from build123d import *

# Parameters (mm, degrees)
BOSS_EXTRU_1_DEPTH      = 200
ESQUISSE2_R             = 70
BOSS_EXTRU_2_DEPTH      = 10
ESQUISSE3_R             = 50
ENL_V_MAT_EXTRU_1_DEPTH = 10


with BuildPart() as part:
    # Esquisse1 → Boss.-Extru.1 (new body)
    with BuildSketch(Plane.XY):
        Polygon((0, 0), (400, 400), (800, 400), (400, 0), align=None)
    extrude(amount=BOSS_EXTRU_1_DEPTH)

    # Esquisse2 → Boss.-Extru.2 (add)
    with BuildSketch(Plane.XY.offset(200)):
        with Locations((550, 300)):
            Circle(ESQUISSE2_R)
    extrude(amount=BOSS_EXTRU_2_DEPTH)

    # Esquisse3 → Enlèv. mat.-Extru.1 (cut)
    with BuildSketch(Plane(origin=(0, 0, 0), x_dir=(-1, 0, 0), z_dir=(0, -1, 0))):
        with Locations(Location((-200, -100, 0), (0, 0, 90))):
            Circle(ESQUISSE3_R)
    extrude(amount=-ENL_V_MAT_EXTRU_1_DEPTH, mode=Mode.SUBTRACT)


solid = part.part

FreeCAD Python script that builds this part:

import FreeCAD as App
import Part
import Sketcher

V = App.Vector
Q = App.Units.Quantity


def add_polygon(sketch, points):
    """Adds a closed chain of lines whose ends are joined by coincident constraints."""
    first, n = sketch.GeometryCount, len(points)
    for a, b in zip(points, points[1:] + points[:1]):
        sketch.addGeometry(Part.LineSegment(App.Vector(*a, 0), App.Vector(*b, 0)), False)
    for i in range(n):
        sketch.addConstraint(Sketcher.Constraint("Coincident", first + i, 2, first + (i + 1) % n, 1))

doc = App.newDocument("Part")
body = doc.addObject("PartDesign::Body", "Body")

# Sketch on XY plane
sketch1 = doc.addObject("Sketcher::SketchObject", "Sketch")
body.addObject(sketch1)
sketch1.AttachmentSupport = (doc.XY_Plane, [""])
sketch1.MapMode = "FlatFace"
add_polygon(sketch1, [(400, 400), (0, 0), (400, 0), (800, 400)])  # lines 0-3
sketch1.addConstraint([
    Sketcher.Constraint("Horizontal", 1),
    Sketcher.Constraint("Horizontal", 3),
    Sketcher.Constraint("Coincident", 0, 2, -1, 1),
    Sketcher.Constraint("Parallel", 0, 2),
    Sketcher.Constraint("Vertical", 1, 2, 3, 2),
    Sketcher.Constraint("DistanceX", 1, 1, 1, 2, 400.0),
    Sketcher.Constraint("Angle", 0, Q("-135 deg")),
])
pad1 = doc.addObject("PartDesign::Pad", "Pad")
body.addObject(pad1)
pad1.Profile = sketch1
pad1.Length = 200

# Sketch on XY plane
sketch2 = doc.addObject("Sketcher::SketchObject", "Sketch001")
body.addObject(sketch2)
sketch2.AttachmentSupport = (doc.XY_Plane, [""])
sketch2.MapMode = "FlatFace"
sketch2.AttachmentOffset = App.Placement(V(0, 0, 200), App.Rotation())
sketch2.addGeometry(Part.Circle(V(550, 300, 0), V(0, 0, 1), 70), False)
sketch2.addConstraint([
    Sketcher.Constraint("Diameter", 0, 140.0),
    Sketcher.Constraint("DistanceX", -1, 1, 0, 3, 550.0),
    Sketcher.Constraint("DistanceY", -1, 1, 0, 3, 300.0),
])
pad2 = doc.addObject("PartDesign::Pad", "Pad001")
body.addObject(pad2)
pad2.Profile = sketch2
pad2.Length = 10

# Sketch on XZ plane
sketch3 = doc.addObject("Sketcher::SketchObject", "Sketch002")
body.addObject(sketch3)
sketch3.AttachmentSupport = (doc.XZ_Plane, [""])
sketch3.MapMode = "FlatFace"
sketch3.addGeometry(Part.Circle(V(200, 100, 0), V(0, 0, 1), 50), False)
sketch3.addConstraint([
    Sketcher.Constraint("Diameter", 0, 100.0),
    Sketcher.Constraint("DistanceX", -1, 1, 0, 3, 200.0),
    Sketcher.Constraint("DistanceY", -1, 1, 0, 3, 100.0),
])
pocket1 = doc.addObject("PartDesign::Pocket", "Pocket")
body.addObject(pocket1)
pocket1.Profile = sketch3
pocket1.Length = 10

doc.recompute()
